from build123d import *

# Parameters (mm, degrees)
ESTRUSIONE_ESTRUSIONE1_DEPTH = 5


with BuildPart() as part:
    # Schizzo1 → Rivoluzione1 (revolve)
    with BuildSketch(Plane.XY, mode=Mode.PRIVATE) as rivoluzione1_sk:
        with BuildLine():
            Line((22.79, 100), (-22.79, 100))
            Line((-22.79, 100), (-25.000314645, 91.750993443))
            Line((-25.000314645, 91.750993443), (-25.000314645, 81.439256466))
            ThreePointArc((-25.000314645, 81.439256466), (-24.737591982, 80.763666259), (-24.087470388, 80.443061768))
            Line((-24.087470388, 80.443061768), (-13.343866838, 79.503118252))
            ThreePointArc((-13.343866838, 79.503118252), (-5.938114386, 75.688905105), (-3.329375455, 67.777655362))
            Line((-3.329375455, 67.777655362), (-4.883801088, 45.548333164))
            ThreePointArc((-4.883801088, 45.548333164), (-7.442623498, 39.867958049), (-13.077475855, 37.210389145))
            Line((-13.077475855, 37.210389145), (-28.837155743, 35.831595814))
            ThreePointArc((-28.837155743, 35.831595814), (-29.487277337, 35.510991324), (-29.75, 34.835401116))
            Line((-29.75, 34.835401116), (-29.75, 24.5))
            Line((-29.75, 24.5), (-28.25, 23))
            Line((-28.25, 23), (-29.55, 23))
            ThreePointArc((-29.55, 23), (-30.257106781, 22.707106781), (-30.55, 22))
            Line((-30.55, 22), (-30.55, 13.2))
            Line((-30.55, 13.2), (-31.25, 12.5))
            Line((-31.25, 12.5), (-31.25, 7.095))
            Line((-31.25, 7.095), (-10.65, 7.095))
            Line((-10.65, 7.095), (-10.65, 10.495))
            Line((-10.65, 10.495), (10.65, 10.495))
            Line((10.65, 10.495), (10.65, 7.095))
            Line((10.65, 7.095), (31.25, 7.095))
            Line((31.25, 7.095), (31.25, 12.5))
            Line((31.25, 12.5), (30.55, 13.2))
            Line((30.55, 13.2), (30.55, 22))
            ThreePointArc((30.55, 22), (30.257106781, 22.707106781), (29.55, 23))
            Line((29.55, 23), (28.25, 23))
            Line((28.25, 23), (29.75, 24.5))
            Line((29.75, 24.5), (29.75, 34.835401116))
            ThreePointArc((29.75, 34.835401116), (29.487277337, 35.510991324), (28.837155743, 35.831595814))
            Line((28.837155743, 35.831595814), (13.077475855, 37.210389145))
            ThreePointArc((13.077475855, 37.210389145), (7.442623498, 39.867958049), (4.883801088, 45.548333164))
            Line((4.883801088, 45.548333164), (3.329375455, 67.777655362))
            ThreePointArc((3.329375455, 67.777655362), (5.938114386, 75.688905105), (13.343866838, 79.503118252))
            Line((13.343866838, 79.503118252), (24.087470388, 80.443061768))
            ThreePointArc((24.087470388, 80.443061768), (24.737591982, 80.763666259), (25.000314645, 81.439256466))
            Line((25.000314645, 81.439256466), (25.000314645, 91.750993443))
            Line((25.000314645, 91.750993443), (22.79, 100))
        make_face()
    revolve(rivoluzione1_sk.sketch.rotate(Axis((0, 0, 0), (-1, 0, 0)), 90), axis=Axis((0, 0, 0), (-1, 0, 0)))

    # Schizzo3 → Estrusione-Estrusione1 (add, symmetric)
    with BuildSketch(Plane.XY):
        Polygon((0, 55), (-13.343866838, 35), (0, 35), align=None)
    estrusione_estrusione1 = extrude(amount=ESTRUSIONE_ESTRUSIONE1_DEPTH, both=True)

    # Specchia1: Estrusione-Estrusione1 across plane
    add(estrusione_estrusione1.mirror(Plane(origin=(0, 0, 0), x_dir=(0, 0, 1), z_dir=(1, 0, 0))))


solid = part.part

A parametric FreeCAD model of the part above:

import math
import FreeCAD as App
import Part
import Sketcher

V = App.Vector
Q = App.Units.Quantity

doc = App.newDocument("Part")
body = doc.addObject("PartDesign::Body", "Body")

sketch1 = body.newObject("Sketcher::SketchObject", "Sketch")
sketch1.AttachmentSupport = (doc.getObject("XY_Plane"), [""])
sketch1.MapMode = "FlatFace"
sketch1.addGeometry(Part.LineSegment(V(22.8, 100, 0), V(-22.8, 100, 0)), False)
sketch1.addGeometry(Part.LineSegment(V(-22.8, 100, 0), V(-25, 91.8, 0)), False)
sketch1.addGeometry(Part.LineSegment(V(-25, 91.8, 0), V(-25, 81.4, 0)), False)
sketch1.addGeometry(Part.ArcOfCircle(Part.Circle(V(-24, 81.4, 0), V(0, 0, 1), 1), math.radians(-180), math.radians(-95)), False)
sketch1.addGeometry(Part.LineSegment(V(-24.1, 80.4, 0), V(-13.3, 79.5, 0)), False)
sketch1.addGeometry(Part.ArcOfCircle(Part.Circle(V(-14.3, 68.5, 0), V(0, 0, 1), 11), math.radians(-4), math.radians(85)), False)
sketch1.addGeometry(Part.LineSegment(V(-3.3, 67.8, 0), V(-4.9, 45.5, 0)), False)
sketch1.addGeometry(Part.ArcOfCircle(Part.Circle(V(-13.9, 46.2, 0), V(0, 0, 1), 9), math.radians(-85), math.radians(-4)), False)
sketch1.addGeometry(Part.LineSegment(V(-13.1, 37.2, 0), V(-28.8, 35.8, 0)), False)
sketch1.addGeometry(Part.ArcOfCircle(Part.Circle(V(-28.8, 34.8, 0), V(0, 0, 1), 1), math.radians(95), math.radians(180)), False)
sketch1.addGeometry(Part.LineSegment(V(-29.8, 34.8, 0), V(-29.8, 24.5, 0)), False)
sketch1.addGeometry(Part.LineSegment(V(-29.8, 24.5, 0), V(-28.2, 23, 0)), False)
sketch1.addGeometry(Part.LineSegment(V(-28.2, 23, 0), V(-29.6, 23, 0)), False)
sketch1.addGeometry(Part.ArcOfCircle(Part.Circle(V(-29.5, 22, 0), V(0, 0, 1), 1), math.radians(90), math.radians(180)), False)
sketch1.addGeometry(Part.LineSegment(V(-30.6, 22, 0), V(-30.6, 13.2, 0)), False)
sketch1.addGeometry(Part.LineSegment(V(-30.6, 13.2, 0), V(-31.2, 12.5, 0)), False)
sketch1.addGeometry(Part.LineSegment(V(-31.2, 12.5, 0), V(-31.2, 7.1, 0)), False)
sketch1.addGeometry(Part.LineSegment(V(-31.2, 7.1, 0), V(-10.7, 7.1, 0)), False)
sketch1.addGeometry(Part.LineSegment(V(-10.7, 7.1, 0), V(-10.7, 10.5, 0)), False)
sketch1.addGeometry(Part.LineSegment(V(-10.7, 10.5, 0), V(10.7, 10.5, 0)), False)
sketch1.addGeometry(Part.LineSegment(V(10.7, 10.5, 0), V(10.7, 7.1, 0)), False)
sketch1.addGeometry(Part.LineSegment(V(10.7, 7.1, 0), V(31.2, 7.1, 0)), False)
sketch1.addGeometry(Part.LineSegment(V(31.2, 7.1, 0), V(31.2, 12.5, 0)), False)
sketch1.addGeometry(Part.LineSegment(V(31.2, 12.5, 0), V(30.6, 13.2, 0)), False)
sketch1.addGeometry(Part.LineSegment(V(30.6, 13.2, 0), V(30.6, 22, 0)), False)
sketch1.addGeometry(Part.ArcOfCircle(Part.Circle(V(29.5, 22, 0), V(0, 0, 1), 1), math.radians(0), math.radians(90)), False)
sketch1.addGeometry(Part.LineSegment(V(29.6, 23, 0), V(28.2, 23, 0)), False)
sketch1.addGeometry(Part.LineSegment(V(28.2, 23, 0), V(29.8, 24.5, 0)), False)
sketch1.addGeometry(Part.LineSegment(V(29.8, 24.5, 0), V(29.8, 34.8, 0)), False)
sketch1.addGeometry(Part.ArcOfCircle(Part.Circle(V(28.8, 34.8, 0), V(0, 0, 1), 1), math.radians(0), math.radians(85)), False)
sketch1.addGeometry(Part.LineSegment(V(28.8, 35.8, 0), V(13.1, 37.2, 0)), False)
sketch1.addGeometry(Part.ArcOfCircle(Part.Circle(V(13.9, 46.2, 0), V(0, 0, 1), 9), math.radians(-176), math.radians(-95)), False)
sketch1.addGeometry(Part.LineSegment(V(4.9, 45.5, 0), V(3.3, 67.8, 0)), False)
sketch1.addGeometry(Part.ArcOfCircle(Part.Circle(V(14.3, 68.5, 0), V(0, 0, 1), 11), math.radians(95), math.radians(184)), False)
sketch1.addGeometry(Part.LineSegment(V(13.3, 79.5, 0), V(24.1, 80.4, 0)), False)
sketch1.addGeometry(Part.ArcOfCircle(Part.Circle(V(24, 81.4, 0), V(0, 0, 1), 1), math.radians(-85), math.radians(0)), False)
sketch1.addGeometry(Part.LineSegment(V(25, 81.4, 0), V(25, 91.8, 0)), False)
sketch1.addGeometry(Part.LineSegment(V(25, 91.8, 0), V(22.8, 100, 0)), False)
sketch1.addConstraint(Sketcher.Constraint("Coincident", 0, 2, 1, 1))
sketch1.addConstraint(Sketcher.Constraint("Coincident", 1, 2, 2, 1))
sketch1.addConstraint(Sketcher.Constraint("Tangent", 2, 2, 3, 1))
sketch1.addConstraint(Sketcher.Constraint("Tangent", 3, 2, 4, 1))
sketch1.addConstraint(Sketcher.Constraint("Tangent", 4, 2, 5, 2))
sketch1.addConstraint(Sketcher.Constraint("Tangent", 5, 1, 6, 1))
sketch1.addConstraint(Sketcher.Constraint("Tangent", 6, 2, 7, 2))
sketch1.addConstraint(Sketcher.Constraint("Tangent", 7, 1, 8, 1))
sketch1.addConstraint(Sketcher.Constraint("Tangent", 8, 2, 9, 1))
sketch1.addConstraint(Sketcher.Constraint("Tangent", 9, 2, 10, 1))
sketch1.addConstraint(Sketcher.Constraint("Coincident", 10, 2, 11, 1))
sketch1.addConstraint(Sketcher.Constraint("Coincident", 11, 2, 12, 1))
sketch1.addConstraint(Sketcher.Constraint("Tangent", 12, 2, 13, 1))
sketch1.addConstraint(Sketcher.Constraint("Tangent", 13, 2, 14, 1))
sketch1.addConstraint(Sketcher.Constraint("Coincident", 14, 2, 15, 1))
sketch1.addConstraint(Sketcher.Constraint("Coincident", 15, 2, 16, 1))
sketch1.addConstraint(Sketcher.Constraint("Coincident", 16, 2, 17, 1))
sketch1.addConstraint(Sketcher.Constraint("Coincident", 17, 2, 18, 1))
sketch1.addConstraint(Sketcher.Constraint("Coincident", 18, 2, 19, 1))
sketch1.addConstraint(Sketcher.Constraint("Coincident", 19, 2, 20, 1))
sketch1.addConstraint(Sketcher.Constraint("Coincident", 20, 2, 21, 1))
sketch1.addConstraint(Sketcher.Constraint("Coincident", 21, 2, 22, 1))
sketch1.addConstraint(Sketcher.Constraint("Coincident", 22, 2, 23, 1))
sketch1.addConstraint(Sketcher.Constraint("Coincident", 23, 2, 24, 1))
sketch1.addConstraint(Sketcher.Constraint("Tangent", 24, 2, 25, 1))
sketch1.addConstraint(Sketcher.Constraint("Tangent", 25, 2, 26, 1))
sketch1.addConstraint(Sketcher.Constraint("Coincident", 26, 2, 27, 1))
sketch1.addConstraint(Sketcher.Constraint("Coincident", 27, 2, 28, 1))
sketch1.addConstraint(Sketcher.Constraint("Tangent", 28, 2, 29, 1))
sketch1.addConstraint(Sketcher.Constraint("Tangent", 29, 2, 30, 1))
sketch1.addConstraint(Sketcher.Constraint("Tangent", 30, 2, 31, 2))
sketch1.addConstraint(Sketcher.Constraint("Tangent", 31, 1, 32, 1))
sketch1.addConstraint(Sketcher.Constraint("Tangent", 32, 2, 33, 2))
sketch1.addConstraint(Sketcher.Constraint("Tangent", 33, 1, 34, 1))
sketch1.addConstraint(Sketcher.Constraint("Tangent", 34, 2, 35, 1))
sketch1.addConstraint(Sketcher.Constraint("Tangent", 35, 2, 36, 1))
sketch1.addConstraint(Sketcher.Constraint("Coincident", 36, 2, 37, 1))
sketch1.addConstraint(Sketcher.Constraint("Coincident", 37, 2, 0, 1))
sketch1.addConstraint(Sketcher.Constraint("Horizontal", 0))
sketch1.addConstraint(Sketcher.Constraint("Vertical", 2))
sketch1.addConstraint(Sketcher.Constraint("Vertical", 10))
sketch1.addConstraint(Sketcher.Constraint("Horizontal", 12))
sketch1.addConstraint(Sketcher.Constraint("Vertical", 14))
sketch1.addConstraint(Sketcher.Constraint("Vertical", 16))
sketch1.addConstraint(Sketcher.Constraint("Horizontal", 17))
sketch1.addConstraint(Sketcher.Constraint("Vertical", 18))
sketch1.addConstraint(Sketcher.Constraint("Horizontal", 19))
sketch1.addConstraint(Sketcher.Constraint("Vertical", 20))
sketch1.addConstraint(Sketcher.Constraint("Horizontal", 21))
sketch1.addConstraint(Sketcher.Constraint("Vertical", 22))
sketch1.addConstraint(Sketcher.Constraint("Vertical", 24))
sketch1.addConstraint(Sketcher.Constraint("Horizontal", 26))
sketch1.addConstraint(Sketcher.Constraint("Vertical", 28))
sketch1.addConstraint(Sketcher.Constraint("Vertical", 36))
sketch1.addConstraint(Sketcher.Constraint("Equal", 3, 9))
sketch1.addConstraint(Sketcher.Constraint("Equal", 9, 13))
sketch1.addConstraint(Sketcher.Constraint("Equal", 13, 25))
sketch1.addConstraint(Sketcher.Constraint("Equal", 25, 29))
sketch1.addConstraint(Sketcher.Constraint("Equal", 7, 31))
sketch1.addConstraint(Sketcher.Constraint("Equal", 5, 33))
sketch1.addConstraint(Sketcher.Constraint("Equal", 29, 35))
sketch1.addConstraint(Sketcher.Constraint("Symmetric", 13, 3, 25, 3, -2))
sketch1.addConstraint(Sketcher.Constraint("Symmetric", 9, 3, 29, 3, -2))
sketch1.addConstraint(Sketcher.Constraint("Symmetric", 7, 3, 31, 3, -2))
sketch1.addConstraint(Sketcher.Constraint("Symmetric", 5, 3, 33, 3, -2))
sketch1.addConstraint(Sketcher.Constraint("Symmetric", 3, 3, 35, 3, -2))
sketch1.addConstraint(Sketcher.Constraint("Symmetric", 17, 2, 20, 2, -2))
sketch1.addConstraint(Sketcher.Constraint("Symmetric", 15, 2, 22, 2, -2))
sketch1.addConstraint(Sketcher.Constraint("Perpendicular", 11, 15))
sketch1.addConstraint(Sketcher.Constraint("Perpendicular", 15, 23))
sketch1.addConstraint(Sketcher.Constraint("Perpendicular", 23, 27))
sketch1.addConstraint(Sketcher.Constraint("Parallel", 4, 30))
sketch1.addConstraint(Sketcher.Constraint("Horizontal", 14, 2, 23, 2))
sketch1.addConstraint(Sketcher.Constraint("Horizontal", 10, 2, 27, 2))
sketch1.addConstraint(Sketcher.Constraint("Horizontal", 1, 2, 36, 2))
sketch1.addConstraint(Sketcher.Constraint("Equal", 1, 37))
sketch1.addConstraint(Sketcher.Constraint("Radius", 3, Q("1 mm")))
sketch1.addConstraint(Sketcher.Constraint("Radius", 5, Q("11 mm")))
sketch1.addConstraint(Sketcher.Constraint("Radius", 7, Q("9 mm")))
sketch1.addConstraint(Sketcher.Constraint("Angle", 1, Q("-105 deg")))
sketch1.addConstraint(Sketcher.Constraint("Angle", 4, Q("-5 deg")))
sketch1.addConstraint(Sketcher.Constraint("Angle", 6, Q("-94 deg")))
sketch1.addConstraint(Sketcher.Constraint("DistanceX", 12, 2, 12, 1, Q("1.3 mm")))
sketch1.addConstraint(Sketcher.Constraint("DistanceX", 17, 1, 17, 2, Q("20.6 mm")))
sketch1.addConstraint(Sketcher.Constraint("DistanceX", 19, 1, 19, 2, Q("21.3 mm")))
sketch1.addConstraint(Sketcher.Constraint("DistanceY", 14, 2, 14, 1, Q("8.8 mm")))
sketch1.addConstraint(Sketcher.Constraint("DistanceY", 18, 1, 18, 2, Q("3.4 mm")))
sketch1.addConstraint(Sketcher.Constraint("DistanceY", -1, 1, 13, 3, Q("22 mm")))
sketch1.addConstraint(Sketcher.Constraint("DistanceY", -1, 1, 0, 2, Q("100 mm")))
sketch1.addConstraint(Sketcher.Constraint("DistanceX", 15, 2, 11, 2, Q("3 mm")))
sketch1.addConstraint(Sketcher.Constraint("DistanceX", 0, 2, 0, 1, Q("45.58 mm")))
sketch1.addConstraint(Sketcher.Constraint("DistanceY", -1, 1, 10, 2, Q("24.5 mm")))
sketch1.addConstraint(Sketcher.Constraint("Distance", 1, Q("8.54 mm")))
sketch1.addConstraint(Sketcher.Constraint("DistanceY", 16, 2, 16, 1, Q("5.405 mm")))
sketch1.addConstraint(Sketcher.Constraint("DistanceY", 10, 2, 10, 1, Q("10.335401 mm")))
sketch1.addConstraint(Sketcher.Constraint("DistanceX", 6, 2, -1, 1, Q("4.883801 mm")))
sketch1.addConstraint(Sketcher.Constraint("DistanceY", 2, 2, 2, 1, Q("10.311737 mm")))
revolution = body.newObject("PartDesign::Revolution", "Revolution")
revolution.Profile = sketch1
revolution.ReferenceAxis = (sketch1, ["H_Axis"])
revolution.Angle = 360

sketch2 = body.newObject("Sketcher::SketchObject", "Sketch001")
sketch2.AttachmentSupport = (doc.getObject("XY_Plane"), [""])
sketch2.MapMode = "FlatFace"
sketch2.addGeometry(Part.LineSegment(V(0, 55, 0), V(-13, 35, 0)), False)
sketch2.addGeometry(Part.LineSegment(V(-13, 35, 0), V(0, 35, 0)), False)
sketch2.addGeometry(Part.LineSegment(V(0, 35, 0), V(0, 55, 0)), False)
sketch2.addConstraint(Sketcher.Constraint("Coincident", 0, 2, 1, 1))
sketch2.addConstraint(Sketcher.Constraint("Coincident", 1, 2, 2, 1))
sketch2.addConstraint(Sketcher.Constraint("Coincident", 2, 2, 0, 1))
sketch2.addConstraint(Sketcher.Constraint("Horizontal", 1))
sketch2.addConstraint(Sketcher.Constraint("Vertical", 2))
sketch2.addConstraint(Sketcher.Constraint("PointOnObject", 1, 2, -2))
sketch2.addConstraint(Sketcher.Constraint("DistanceY", 2, 1, 2, 2, Q("20 mm")))
sketch2.addConstraint(Sketcher.Constraint("DistanceY", -1, 1, 0, 2, Q("35 mm")))
sketch2.addConstraint(Sketcher.Constraint("DistanceX", 1, 1, 1, 2, Q("13.343867 mm")))
pad1 = body.newObject("PartDesign::Pad", "Pad")
pad1.Profile = sketch2
pad1.Length = 10
pad1.Midplane = True
doc.recompute()

mirrored = body.newObject("PartDesign::Mirrored", "Mirrored")
mirrored.Originals = [pad1]
mirrored.MirrorPlane = (doc.getObject("YZ_Plane"), [""])
body.Tip = mirrored

doc.recompute()
